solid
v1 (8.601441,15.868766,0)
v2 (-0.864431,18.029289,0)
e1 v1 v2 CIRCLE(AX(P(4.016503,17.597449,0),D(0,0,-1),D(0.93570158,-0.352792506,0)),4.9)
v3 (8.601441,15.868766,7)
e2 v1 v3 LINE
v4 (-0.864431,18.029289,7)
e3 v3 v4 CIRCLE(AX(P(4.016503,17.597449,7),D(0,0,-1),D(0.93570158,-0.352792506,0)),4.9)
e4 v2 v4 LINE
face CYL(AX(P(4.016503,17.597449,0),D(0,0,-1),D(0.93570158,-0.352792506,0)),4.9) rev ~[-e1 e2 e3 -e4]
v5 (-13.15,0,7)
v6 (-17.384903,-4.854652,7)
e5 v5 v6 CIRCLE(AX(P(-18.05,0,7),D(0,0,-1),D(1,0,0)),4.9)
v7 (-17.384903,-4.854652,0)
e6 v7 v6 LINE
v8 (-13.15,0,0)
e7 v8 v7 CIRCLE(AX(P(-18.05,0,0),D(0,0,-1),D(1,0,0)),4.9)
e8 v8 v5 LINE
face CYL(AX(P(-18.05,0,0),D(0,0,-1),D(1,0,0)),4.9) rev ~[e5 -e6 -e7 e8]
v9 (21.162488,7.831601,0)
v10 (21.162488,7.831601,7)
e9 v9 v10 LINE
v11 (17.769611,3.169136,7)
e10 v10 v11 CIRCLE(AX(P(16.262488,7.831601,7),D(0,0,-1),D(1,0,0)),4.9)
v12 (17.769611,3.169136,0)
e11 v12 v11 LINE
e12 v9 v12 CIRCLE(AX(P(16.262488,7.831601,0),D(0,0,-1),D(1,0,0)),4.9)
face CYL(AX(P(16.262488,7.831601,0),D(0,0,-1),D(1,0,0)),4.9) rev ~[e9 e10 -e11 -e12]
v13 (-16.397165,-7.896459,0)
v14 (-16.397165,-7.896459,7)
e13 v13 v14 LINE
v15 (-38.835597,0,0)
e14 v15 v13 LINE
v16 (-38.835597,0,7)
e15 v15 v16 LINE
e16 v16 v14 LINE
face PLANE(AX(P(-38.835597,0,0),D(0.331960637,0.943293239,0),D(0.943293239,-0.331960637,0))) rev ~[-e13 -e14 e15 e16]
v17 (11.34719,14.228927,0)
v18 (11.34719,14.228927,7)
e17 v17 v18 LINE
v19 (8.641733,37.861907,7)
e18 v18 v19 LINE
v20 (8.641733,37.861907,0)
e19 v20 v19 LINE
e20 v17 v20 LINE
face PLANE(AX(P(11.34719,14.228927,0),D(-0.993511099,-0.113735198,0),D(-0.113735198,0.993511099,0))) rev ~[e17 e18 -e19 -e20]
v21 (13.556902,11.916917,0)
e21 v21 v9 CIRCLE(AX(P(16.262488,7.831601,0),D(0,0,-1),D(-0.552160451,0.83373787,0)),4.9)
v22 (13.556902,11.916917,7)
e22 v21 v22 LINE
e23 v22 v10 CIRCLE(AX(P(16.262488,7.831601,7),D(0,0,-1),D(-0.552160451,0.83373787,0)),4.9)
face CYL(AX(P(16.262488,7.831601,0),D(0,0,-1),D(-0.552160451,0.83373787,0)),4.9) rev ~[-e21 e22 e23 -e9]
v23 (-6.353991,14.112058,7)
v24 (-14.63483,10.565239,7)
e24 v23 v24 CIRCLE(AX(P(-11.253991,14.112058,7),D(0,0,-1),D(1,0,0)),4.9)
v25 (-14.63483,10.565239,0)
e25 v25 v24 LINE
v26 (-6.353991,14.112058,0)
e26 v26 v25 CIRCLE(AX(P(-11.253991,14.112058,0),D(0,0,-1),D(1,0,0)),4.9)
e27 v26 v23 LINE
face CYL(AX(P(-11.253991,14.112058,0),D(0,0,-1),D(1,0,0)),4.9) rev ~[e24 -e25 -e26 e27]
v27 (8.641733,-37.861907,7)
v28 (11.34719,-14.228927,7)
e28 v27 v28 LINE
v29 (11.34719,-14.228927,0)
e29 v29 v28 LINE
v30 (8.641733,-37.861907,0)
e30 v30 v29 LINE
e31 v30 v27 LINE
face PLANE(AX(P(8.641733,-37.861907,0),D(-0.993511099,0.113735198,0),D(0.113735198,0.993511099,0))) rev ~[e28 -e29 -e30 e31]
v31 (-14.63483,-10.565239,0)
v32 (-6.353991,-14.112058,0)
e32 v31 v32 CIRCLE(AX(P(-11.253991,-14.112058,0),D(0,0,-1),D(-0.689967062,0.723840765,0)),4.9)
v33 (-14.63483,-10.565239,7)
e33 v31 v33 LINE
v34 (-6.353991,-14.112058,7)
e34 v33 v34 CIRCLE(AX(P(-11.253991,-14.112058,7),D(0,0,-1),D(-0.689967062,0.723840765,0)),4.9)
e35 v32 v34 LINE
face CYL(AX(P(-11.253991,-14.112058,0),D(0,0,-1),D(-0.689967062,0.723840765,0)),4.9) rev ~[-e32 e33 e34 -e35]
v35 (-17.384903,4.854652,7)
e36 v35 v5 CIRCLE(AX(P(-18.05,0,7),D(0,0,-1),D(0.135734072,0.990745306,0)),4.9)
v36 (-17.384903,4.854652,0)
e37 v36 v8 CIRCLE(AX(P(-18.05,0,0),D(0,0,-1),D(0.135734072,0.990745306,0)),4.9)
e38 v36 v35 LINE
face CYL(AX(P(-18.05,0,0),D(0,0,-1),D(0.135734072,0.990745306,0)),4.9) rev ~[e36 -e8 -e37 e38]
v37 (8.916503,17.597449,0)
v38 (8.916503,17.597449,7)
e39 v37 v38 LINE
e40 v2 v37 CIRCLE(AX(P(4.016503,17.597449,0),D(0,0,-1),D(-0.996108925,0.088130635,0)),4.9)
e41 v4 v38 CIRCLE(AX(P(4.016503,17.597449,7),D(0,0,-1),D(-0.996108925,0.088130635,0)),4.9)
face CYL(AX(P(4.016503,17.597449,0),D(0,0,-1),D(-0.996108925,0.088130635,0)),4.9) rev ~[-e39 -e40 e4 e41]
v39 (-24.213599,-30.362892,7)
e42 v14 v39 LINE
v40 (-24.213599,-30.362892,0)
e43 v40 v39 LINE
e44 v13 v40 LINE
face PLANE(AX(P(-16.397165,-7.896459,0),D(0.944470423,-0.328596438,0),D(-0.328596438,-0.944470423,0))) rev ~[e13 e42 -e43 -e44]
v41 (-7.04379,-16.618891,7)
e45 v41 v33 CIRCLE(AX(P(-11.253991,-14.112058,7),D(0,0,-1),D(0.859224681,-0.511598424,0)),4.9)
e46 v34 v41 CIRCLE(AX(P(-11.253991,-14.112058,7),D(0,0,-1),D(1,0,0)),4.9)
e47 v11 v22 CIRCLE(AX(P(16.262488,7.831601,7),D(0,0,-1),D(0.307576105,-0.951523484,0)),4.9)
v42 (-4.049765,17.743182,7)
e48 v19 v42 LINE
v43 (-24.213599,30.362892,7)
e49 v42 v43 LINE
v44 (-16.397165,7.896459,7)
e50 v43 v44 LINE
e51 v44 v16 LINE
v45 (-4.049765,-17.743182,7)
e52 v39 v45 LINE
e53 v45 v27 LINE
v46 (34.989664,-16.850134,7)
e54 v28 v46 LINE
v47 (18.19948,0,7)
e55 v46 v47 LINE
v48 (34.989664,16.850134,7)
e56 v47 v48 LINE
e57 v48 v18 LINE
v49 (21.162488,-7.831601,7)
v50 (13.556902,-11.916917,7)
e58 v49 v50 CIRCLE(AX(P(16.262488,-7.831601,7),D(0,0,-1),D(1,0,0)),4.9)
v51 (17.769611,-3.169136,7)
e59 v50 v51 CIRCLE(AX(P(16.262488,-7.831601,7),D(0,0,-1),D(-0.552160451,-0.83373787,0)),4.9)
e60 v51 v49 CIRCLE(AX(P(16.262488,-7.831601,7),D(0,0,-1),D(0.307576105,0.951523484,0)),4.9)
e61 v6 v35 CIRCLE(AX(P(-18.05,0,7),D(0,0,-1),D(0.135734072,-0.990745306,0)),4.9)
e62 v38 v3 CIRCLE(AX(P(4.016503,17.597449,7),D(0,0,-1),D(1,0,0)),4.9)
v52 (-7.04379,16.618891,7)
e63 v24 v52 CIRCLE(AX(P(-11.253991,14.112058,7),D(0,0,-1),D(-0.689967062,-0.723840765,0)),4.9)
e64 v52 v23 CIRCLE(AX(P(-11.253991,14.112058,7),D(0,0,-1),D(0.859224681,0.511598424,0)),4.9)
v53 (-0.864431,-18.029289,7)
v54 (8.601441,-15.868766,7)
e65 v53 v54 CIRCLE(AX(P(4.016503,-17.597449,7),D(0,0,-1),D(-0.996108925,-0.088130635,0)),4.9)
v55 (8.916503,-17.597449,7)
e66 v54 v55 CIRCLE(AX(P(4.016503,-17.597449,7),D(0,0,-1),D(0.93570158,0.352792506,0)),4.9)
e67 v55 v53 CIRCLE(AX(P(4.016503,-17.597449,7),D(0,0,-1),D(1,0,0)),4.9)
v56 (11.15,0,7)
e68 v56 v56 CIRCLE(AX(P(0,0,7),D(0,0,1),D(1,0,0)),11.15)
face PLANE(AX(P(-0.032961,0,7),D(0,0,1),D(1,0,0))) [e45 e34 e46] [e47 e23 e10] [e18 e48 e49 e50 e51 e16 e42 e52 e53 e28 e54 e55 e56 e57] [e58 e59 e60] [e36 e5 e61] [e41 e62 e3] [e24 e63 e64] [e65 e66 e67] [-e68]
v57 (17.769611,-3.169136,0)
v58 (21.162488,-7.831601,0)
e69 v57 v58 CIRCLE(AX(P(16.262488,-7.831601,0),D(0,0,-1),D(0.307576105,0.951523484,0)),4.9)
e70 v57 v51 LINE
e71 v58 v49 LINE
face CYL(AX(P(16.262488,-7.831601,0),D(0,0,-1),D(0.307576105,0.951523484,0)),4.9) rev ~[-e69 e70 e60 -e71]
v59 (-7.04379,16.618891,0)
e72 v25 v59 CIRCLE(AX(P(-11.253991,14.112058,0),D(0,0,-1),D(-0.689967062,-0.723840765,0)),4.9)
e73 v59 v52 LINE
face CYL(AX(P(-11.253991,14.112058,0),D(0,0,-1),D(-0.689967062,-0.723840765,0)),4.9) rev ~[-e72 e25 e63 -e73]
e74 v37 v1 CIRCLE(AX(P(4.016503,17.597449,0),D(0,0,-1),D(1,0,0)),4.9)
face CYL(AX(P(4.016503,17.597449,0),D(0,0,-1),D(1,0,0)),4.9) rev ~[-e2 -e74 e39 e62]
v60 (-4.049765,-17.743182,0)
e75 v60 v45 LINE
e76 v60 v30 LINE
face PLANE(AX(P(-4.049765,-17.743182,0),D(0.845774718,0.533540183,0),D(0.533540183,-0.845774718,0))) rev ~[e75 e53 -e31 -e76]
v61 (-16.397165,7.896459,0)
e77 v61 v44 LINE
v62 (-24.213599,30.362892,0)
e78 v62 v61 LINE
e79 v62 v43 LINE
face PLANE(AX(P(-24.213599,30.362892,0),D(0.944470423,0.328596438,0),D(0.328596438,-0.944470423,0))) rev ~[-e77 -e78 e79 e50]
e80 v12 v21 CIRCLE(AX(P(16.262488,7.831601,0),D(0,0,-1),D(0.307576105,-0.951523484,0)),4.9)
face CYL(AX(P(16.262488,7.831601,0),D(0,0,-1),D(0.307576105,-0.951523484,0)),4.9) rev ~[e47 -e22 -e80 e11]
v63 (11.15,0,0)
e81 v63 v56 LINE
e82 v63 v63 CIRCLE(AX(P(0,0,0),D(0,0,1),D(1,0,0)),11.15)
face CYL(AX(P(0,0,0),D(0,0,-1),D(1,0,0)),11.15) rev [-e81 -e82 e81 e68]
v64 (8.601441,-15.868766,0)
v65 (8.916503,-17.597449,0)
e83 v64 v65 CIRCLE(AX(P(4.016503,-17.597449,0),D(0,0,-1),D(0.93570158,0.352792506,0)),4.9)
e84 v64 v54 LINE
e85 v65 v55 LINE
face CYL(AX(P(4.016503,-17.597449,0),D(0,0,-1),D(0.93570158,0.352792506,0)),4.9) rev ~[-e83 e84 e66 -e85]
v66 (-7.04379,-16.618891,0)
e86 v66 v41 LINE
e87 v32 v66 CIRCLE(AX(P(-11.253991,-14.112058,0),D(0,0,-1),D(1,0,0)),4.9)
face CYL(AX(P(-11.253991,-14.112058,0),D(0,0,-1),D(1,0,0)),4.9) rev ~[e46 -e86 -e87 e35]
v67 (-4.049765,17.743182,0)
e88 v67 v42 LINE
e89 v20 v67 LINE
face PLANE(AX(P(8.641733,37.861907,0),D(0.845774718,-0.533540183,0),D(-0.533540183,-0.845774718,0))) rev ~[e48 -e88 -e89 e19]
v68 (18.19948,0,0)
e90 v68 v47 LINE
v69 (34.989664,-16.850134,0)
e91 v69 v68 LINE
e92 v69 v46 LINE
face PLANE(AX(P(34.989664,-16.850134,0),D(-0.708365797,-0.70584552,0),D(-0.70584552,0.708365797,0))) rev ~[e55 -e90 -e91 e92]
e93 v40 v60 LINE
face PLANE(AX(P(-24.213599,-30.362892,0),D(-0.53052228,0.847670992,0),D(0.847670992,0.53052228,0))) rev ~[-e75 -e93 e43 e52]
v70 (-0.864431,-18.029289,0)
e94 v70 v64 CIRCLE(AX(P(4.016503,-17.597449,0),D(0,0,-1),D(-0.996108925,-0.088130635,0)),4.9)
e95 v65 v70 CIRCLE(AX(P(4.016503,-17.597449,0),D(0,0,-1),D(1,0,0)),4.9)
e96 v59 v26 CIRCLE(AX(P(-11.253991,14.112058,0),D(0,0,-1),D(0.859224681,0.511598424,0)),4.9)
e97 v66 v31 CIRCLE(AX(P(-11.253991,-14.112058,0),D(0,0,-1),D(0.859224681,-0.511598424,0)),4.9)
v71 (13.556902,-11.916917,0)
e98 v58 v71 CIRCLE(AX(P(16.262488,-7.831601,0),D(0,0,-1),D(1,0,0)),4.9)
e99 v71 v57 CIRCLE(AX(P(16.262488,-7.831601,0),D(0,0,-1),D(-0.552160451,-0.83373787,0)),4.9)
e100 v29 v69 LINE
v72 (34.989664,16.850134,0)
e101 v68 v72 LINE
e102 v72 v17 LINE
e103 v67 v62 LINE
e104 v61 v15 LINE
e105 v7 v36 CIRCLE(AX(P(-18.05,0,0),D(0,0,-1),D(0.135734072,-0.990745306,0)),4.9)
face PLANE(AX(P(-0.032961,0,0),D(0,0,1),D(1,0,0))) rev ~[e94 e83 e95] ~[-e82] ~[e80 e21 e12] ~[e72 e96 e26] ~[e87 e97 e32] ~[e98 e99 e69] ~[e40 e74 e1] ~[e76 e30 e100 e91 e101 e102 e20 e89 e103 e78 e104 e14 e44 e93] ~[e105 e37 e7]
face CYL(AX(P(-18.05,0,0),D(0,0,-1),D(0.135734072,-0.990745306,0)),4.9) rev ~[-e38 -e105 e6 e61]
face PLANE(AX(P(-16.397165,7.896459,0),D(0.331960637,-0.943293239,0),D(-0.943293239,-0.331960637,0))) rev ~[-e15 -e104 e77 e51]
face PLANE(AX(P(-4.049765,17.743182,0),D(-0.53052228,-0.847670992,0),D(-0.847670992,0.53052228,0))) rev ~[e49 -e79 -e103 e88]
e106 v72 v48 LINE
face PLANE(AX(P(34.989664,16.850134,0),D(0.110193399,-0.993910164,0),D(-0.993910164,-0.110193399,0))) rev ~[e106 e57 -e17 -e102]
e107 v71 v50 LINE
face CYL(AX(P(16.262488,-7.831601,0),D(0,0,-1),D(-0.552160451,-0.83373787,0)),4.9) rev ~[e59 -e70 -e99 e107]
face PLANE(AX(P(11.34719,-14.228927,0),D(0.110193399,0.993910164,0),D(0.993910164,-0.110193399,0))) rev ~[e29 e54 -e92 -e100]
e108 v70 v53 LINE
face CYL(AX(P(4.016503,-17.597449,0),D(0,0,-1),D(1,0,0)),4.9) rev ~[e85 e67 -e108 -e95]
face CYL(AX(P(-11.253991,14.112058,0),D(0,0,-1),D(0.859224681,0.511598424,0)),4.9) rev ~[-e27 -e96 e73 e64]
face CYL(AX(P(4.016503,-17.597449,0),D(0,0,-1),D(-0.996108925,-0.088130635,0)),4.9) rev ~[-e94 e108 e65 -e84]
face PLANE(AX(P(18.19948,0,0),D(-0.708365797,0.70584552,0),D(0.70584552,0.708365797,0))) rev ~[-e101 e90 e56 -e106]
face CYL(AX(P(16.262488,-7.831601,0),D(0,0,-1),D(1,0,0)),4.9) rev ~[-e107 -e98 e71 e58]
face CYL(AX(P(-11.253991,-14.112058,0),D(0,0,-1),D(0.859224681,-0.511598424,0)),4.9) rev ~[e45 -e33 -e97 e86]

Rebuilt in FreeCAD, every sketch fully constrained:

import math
import FreeCAD as App
import Part
import Sketcher


def add_polygon(sketch, points):
    """Adds a closed chain of lines whose ends are joined by coincident constraints."""
    first, n = sketch.GeometryCount, len(points)
    for a, b in zip(points, points[1:] + points[:1]):
        sketch.addGeometry(Part.LineSegment(App.Vector(*a, 0), App.Vector(*b, 0)), False)
    for i in range(n):
        sketch.addConstraint(Sketcher.Constraint("Coincident", first + i, 2, first + (i + 1) % n, 1))

doc = App.newDocument("Part")
body = doc.addObject("PartDesign::Body", "Body")

sketch1 = body.newObject("Sketcher::SketchObject", "Sketch")
sketch1.AttachmentSupport = (doc.getObject("XY_Plane"), [""])
sketch1.MapMode = "FlatFace"
add_polygon(sketch1, [(35, 16.9), (11.3, 14.2), (8.6, 37.9), (-4, 17.7), (-24.2, 30.4), (-16.4, 7.9), (-38.8, 0), (-16.4, -7.9), (-24.2, -30.4), (-4, -17.7), (8.6, -37.9), (11.3, -14.2), (35, -16.9), (18.2, 0)])
sketch1.addGeometry(Part.ArcOfCircle(Part.Circle(App.Vector(-11.3, -14.1, 0), App.Vector(0, 0, 1), 4.9), math.radians(0), math.radians(134)), False)
sketch1.addGeometry(Part.ArcOfCircle(Part.Circle(App.Vector(-11.3, -14.1, 0), App.Vector(0, 0, 1), 4.9), math.radians(-31), math.radians(0)), False)
sketch1.addGeometry(Part.ArcOfCircle(Part.Circle(App.Vector(-11.3, -14.1, 0), App.Vector(0, 0, 1), 4.9), math.radians(134), math.radians(329)), False)
sketch1.addGeometry(Part.ArcOfCircle(Part.Circle(App.Vector(4, -17.6, 0), App.Vector(0, 0, 1), 4.9), math.radians(21), math.radians(185)), False)
sketch1.addGeometry(Part.ArcOfCircle(Part.Circle(App.Vector(4, -17.6, 0), App.Vector(0, 0, 1), 4.9), math.radians(0), math.radians(21)), False)
sketch1.addGeometry(Part.ArcOfCircle(Part.Circle(App.Vector(4, -17.6, 0), App.Vector(0, 0, 1), 4.9), math.radians(-175), math.radians(0)), False)
sketch1.addGeometry(Part.ArcOfCircle(Part.Circle(App.Vector(-18.1, 0, 0), App.Vector(0, 0, 1), 4.9), math.radians(0), math.radians(82)), False)
sketch1.addGeometry(Part.ArcOfCircle(Part.Circle(App.Vector(-18.1, 0, 0), App.Vector(0, 0, 1), 4.9), math.radians(-82), math.radians(0)), False)
sketch1.addGeometry(Part.ArcOfCircle(Part.Circle(App.Vector(-18.1, 0, 0), App.Vector(0, 0, 1), 4.9), math.radians(82), math.radians(278)), False)
sketch1.addGeometry(Part.ArcOfCircle(Part.Circle(App.Vector(16.3, -7.8, 0), App.Vector(0, 0, 1), 4.9), math.radians(72), math.radians(236)), False)
sketch1.addGeometry(Part.ArcOfCircle(Part.Circle(App.Vector(16.3, -7.8, 0), App.Vector(0, 0, 1), 4.9), math.radians(0), math.radians(72)), False)
sketch1.addGeometry(Part.ArcOfCircle(Part.Circle(App.Vector(16.3, -7.8, 0), App.Vector(0, 0, 1), 4.9), math.radians(-124), math.radians(0)), False)
sketch1.addGeometry(Part.Circle(App.Vector(0, 0, 0), App.Vector(0, 0, 1), 11.2), False)
sketch1.addGeometry(Part.ArcOfCircle(Part.Circle(App.Vector(-11.3, 14.1, 0), App.Vector(0, 0, 1), 4.9), math.radians(0), math.radians(31)), False)
sketch1.addGeometry(Part.ArcOfCircle(Part.Circle(App.Vector(-11.3, 14.1, 0), App.Vector(0, 0, 1), 4.9), math.radians(-134), math.radians(0)), False)
sketch1.addGeometry(Part.ArcOfCircle(Part.Circle(App.Vector(-11.3, 14.1, 0), App.Vector(0, 0, 1), 4.9), math.radians(31), math.radians(226)), False)
sketch1.addGeometry(Part.ArcOfCircle(Part.Circle(App.Vector(16.3, 7.8, 0), App.Vector(0, 0, 1), 4.9), math.radians(124), math.radians(288)), False)
sketch1.addGeometry(Part.ArcOfCircle(Part.Circle(App.Vector(16.3, 7.8, 0), App.Vector(0, 0, 1), 4.9), math.radians(0), math.radians(124)), False)
sketch1.addGeometry(Part.ArcOfCircle(Part.Circle(App.Vector(16.3, 7.8, 0), App.Vector(0, 0, 1), 4.9), math.radians(-72), math.radians(0)), False)
sketch1.addGeometry(Part.ArcOfCircle(Part.Circle(App.Vector(4, 17.6, 0), App.Vector(0, 0, 1), 4.9), math.radians(175), math.radians(339)), False)
sketch1.addGeometry(Part.ArcOfCircle(Part.Circle(App.Vector(4, 17.6, 0), App.Vector(0, 0, 1), 4.9), math.radians(0), math.radians(175)), False)
sketch1.addGeometry(Part.ArcOfCircle(Part.Circle(App.Vector(4, 17.6, 0), App.Vector(0, 0, 1), 4.9), math.radians(-21), math.radians(0)), False)
sketch1.addConstraint(Sketcher.Constraint("Tangent", 14, 1, 15, 2))
sketch1.addConstraint(Sketcher.Constraint("Tangent", 15, 1, 16, 2))
sketch1.addConstraint(Sketcher.Constraint("Tangent", 16, 1, 14, 2))
sketch1.addConstraint(Sketcher.Constraint("Tangent", 17, 1, 18, 2))
sketch1.addConstraint(Sketcher.Constraint("Tangent", 18, 1, 19, 2))
sketch1.addConstraint(Sketcher.Constraint("Tangent", 19, 1, 17, 2))
sketch1.addConstraint(Sketcher.Constraint("Tangent", 20, 1, 21, 2))
sketch1.addConstraint(Sketcher.Constraint("Tangent", 21, 1, 22, 2))
sketch1.addConstraint(Sketcher.Constraint("Tangent", 22, 1, 20, 2))
sketch1.addConstraint(Sketcher.Constraint("Tangent", 23, 1, 24, 2))
sketch1.addConstraint(Sketcher.Constraint("Tangent", 24, 1, 25, 2))
sketch1.addConstraint(Sketcher.Constraint("Tangent", 25, 1, 23, 2))
sketch1.addConstraint(Sketcher.Constraint("Tangent", 27, 1, 28, 2))
sketch1.addConstraint(Sketcher.Constraint("Tangent", 28, 1, 29, 2))
sketch1.addConstraint(Sketcher.Constraint("Tangent", 29, 1, 27, 2))
sketch1.addConstraint(Sketcher.Constraint("Tangent", 30, 1, 31, 2))
sketch1.addConstraint(Sketcher.Constraint("Tangent", 31, 1, 32, 2))
sketch1.addConstraint(Sketcher.Constraint("Tangent", 32, 1, 30, 2))
sketch1.addConstraint(Sketcher.Constraint("Tangent", 33, 1, 34, 2))
sketch1.addConstraint(Sketcher.Constraint("Tangent", 34, 1, 35, 2))
sketch1.addConstraint(Sketcher.Constraint("Tangent", 35, 1, 33, 2))
sketch1.addConstraint(Sketcher.Constraint("Coincident", 26, 3, -1, 1))
sketch1.addConstraint(Sketcher.Constraint("Equal", 16, 17))
sketch1.addConstraint(Sketcher.Constraint("Equal", 19, 20))
sketch1.addConstraint(Sketcher.Constraint("Equal", 22, 23))
sketch1.addConstraint(Sketcher.Constraint("Equal", 25, 27))
sketch1.addConstraint(Sketcher.Constraint("Equal", 29, 30))
sketch1.addConstraint(Sketcher.Constraint("Equal", 32, 33))
sketch1.addConstraint(Sketcher.Constraint("Symmetric", 14, 3, 27, 3, -1))
sketch1.addConstraint(Sketcher.Constraint("Symmetric", 23, 3, 30, 3, -1))
sketch1.addConstraint(Sketcher.Constraint("Symmetric", 17, 3, 33, 3, -1))
sketch1.addConstraint(Sketcher.Constraint("Symmetric", 4, 2, 6, 2, -1))
sketch1.addConstraint(Sketcher.Constraint("Symmetric", 3, 2, 7, 2, -1))
sketch1.addConstraint(Sketcher.Constraint("Symmetric", 2, 2, 8, 2, -1))
sketch1.addConstraint(Sketcher.Constraint("Symmetric", 1, 2, 9, 2, -1))
sketch1.addConstraint(Sketcher.Constraint("Symmetric", 0, 2, 10, 2, -1))
sketch1.addConstraint(Sketcher.Constraint("Symmetric", 11, 2, 13, 2, -1))
sketch1.addConstraint(Sketcher.Constraint("Symmetric", 21, 1, 22, 1, -1))
sketch1.addConstraint(Sketcher.Constraint("PointOnObject", 5, 2, -1))
sketch1.addConstraint(Sketcher.Constraint("PointOnObject", 12, 2, -1))
sketch1.addConstraint(Sketcher.Constraint("PointOnObject", 20, 1, -1))
sketch1.addConstraint(Sketcher.Constraint("Horizontal", 16, 3, 14, 1))
sketch1.addConstraint(Sketcher.Constraint("Horizontal", 19, 3, 18, 1))
sketch1.addConstraint(Sketcher.Constraint("Horizontal", 25, 3, 24, 1))
sketch1.addConstraint(Sketcher.Constraint("Horizontal", 29, 3, 27, 1))
sketch1.addConstraint(Sketcher.Constraint("Horizontal", 32, 3, 31, 1))
sketch1.addConstraint(Sketcher.Constraint("Horizontal", 35, 3, 34, 1))
sketch1.addConstraint(Sketcher.Constraint("Vertical", 16, 1, 28, 1))
sketch1.addConstraint(Sketcher.Constraint("Vertical", 15, 1, 29, 1))
sketch1.addConstraint(Sketcher.Constraint("Vertical", 25, 1, 30, 1))
sketch1.addConstraint(Sketcher.Constraint("Vertical", 23, 1, 32, 1))
sketch1.addConstraint(Sketcher.Constraint("Vertical", 19, 1, 33, 1))
sketch1.addConstraint(Sketcher.Constraint("Vertical", 17, 1, 35, 1))
sketch1.addConstraint(Sketcher.Constraint("Equal", 0, 1))
sketch1.addConstraint(Sketcher.Constraint("Equal", 1, 2))
sketch1.addConstraint(Sketcher.Constraint("Equal", 2, 3))
sketch1.addConstraint(Sketcher.Constraint("Equal", 3, 4))
sketch1.addConstraint(Sketcher.Constraint("Equal", 4, 5))
sketch1.addConstraint(Sketcher.Constraint("Equal", 11, 12))
sketch1.addConstraint(Sketcher.Constraint("Diameter", 26, 22.3))
sketch1.addConstraint(Sketcher.Constraint("Radius", 14, 4.9))
sketch1.addConstraint(Sketcher.Constraint("DistanceX", 20, 3, -1, 1, 18.05))
sketch1.addConstraint(Sketcher.Constraint("DistanceY", 23, 3, -1, 1, 7.831601))
sketch1.addConstraint(Sketcher.Constraint("DistanceX", 3, 2, -1, 1, 24.213599))
sketch1.addConstraint(Sketcher.Constraint("DistanceX", -1, 1, 25, 1, 13.556902))
sketch1.addConstraint(Sketcher.Constraint("DistanceY", 4, 2, 28, 3, 6.2156))
sketch1.addConstraint(Sketcher.Constraint("DistanceX", 8, 2, 9, 2, 12.691499))
sketch1.addConstraint(Sketcher.Constraint("DistanceX", 15, 1, 14, 1, 0.689799))
sketch1.addConstraint(Sketcher.Constraint("DistanceY", 19, 1, 15, 1, 1.410398))
sketch1.addConstraint(Sketcher.Constraint("DistanceX", 35, 3, 30, 1, 9.540399))
sketch1.addConstraint(Sketcher.Constraint("DistanceX", 14, 3, -1, 1, 11.253991))
sketch1.addConstraint(Sketcher.Constraint("DistanceY", 14, 3, -1, 1, 14.112058))
sketch1.addConstraint(Sketcher.Constraint("DistanceY", 17, 3, -1, 1, 17.597449))
sketch1.addConstraint(Sketcher.Constraint("DistanceX", -1, 1, 23, 3, 16.262488))
sketch1.addConstraint(Sketcher.Constraint("DistanceX", -1, 1, 0, 2, 11.34719))
sketch1.addConstraint(Sketcher.Constraint("DistanceY", -1, 1, 2, 2, 17.743182))
sketch1.addConstraint(Sketcher.Constraint("DistanceX", -1, 1, 12, 2, 18.19948))
sketch1.addConstraint(Sketcher.Constraint("DistanceX", 16, 1, -1, 1, 14.63483))
sketch1.addConstraint(Sketcher.Constraint("DistanceX", -1, 1, 17, 1, 8.601441))
sketch1.addConstraint(Sketcher.Constraint("DistanceX", -1, 1, 23, 1, 17.769611))
sketch1.addConstraint(Sketcher.Constraint("DistanceX", 33, 3, 1, 2, 4.62523))
sketch1.addConstraint(Sketcher.Constraint("DistanceY", 33, 3, 1, 2, 20.264459))
sketch1.addConstraint(Sketcher.Constraint("DistanceX", 21, 1, -1, 1, 17.384903))
pad1 = body.newObject("PartDesign::Pad", "Pad")
pad1.Profile = sketch1
pad1.Length = 7

doc.recompute()
